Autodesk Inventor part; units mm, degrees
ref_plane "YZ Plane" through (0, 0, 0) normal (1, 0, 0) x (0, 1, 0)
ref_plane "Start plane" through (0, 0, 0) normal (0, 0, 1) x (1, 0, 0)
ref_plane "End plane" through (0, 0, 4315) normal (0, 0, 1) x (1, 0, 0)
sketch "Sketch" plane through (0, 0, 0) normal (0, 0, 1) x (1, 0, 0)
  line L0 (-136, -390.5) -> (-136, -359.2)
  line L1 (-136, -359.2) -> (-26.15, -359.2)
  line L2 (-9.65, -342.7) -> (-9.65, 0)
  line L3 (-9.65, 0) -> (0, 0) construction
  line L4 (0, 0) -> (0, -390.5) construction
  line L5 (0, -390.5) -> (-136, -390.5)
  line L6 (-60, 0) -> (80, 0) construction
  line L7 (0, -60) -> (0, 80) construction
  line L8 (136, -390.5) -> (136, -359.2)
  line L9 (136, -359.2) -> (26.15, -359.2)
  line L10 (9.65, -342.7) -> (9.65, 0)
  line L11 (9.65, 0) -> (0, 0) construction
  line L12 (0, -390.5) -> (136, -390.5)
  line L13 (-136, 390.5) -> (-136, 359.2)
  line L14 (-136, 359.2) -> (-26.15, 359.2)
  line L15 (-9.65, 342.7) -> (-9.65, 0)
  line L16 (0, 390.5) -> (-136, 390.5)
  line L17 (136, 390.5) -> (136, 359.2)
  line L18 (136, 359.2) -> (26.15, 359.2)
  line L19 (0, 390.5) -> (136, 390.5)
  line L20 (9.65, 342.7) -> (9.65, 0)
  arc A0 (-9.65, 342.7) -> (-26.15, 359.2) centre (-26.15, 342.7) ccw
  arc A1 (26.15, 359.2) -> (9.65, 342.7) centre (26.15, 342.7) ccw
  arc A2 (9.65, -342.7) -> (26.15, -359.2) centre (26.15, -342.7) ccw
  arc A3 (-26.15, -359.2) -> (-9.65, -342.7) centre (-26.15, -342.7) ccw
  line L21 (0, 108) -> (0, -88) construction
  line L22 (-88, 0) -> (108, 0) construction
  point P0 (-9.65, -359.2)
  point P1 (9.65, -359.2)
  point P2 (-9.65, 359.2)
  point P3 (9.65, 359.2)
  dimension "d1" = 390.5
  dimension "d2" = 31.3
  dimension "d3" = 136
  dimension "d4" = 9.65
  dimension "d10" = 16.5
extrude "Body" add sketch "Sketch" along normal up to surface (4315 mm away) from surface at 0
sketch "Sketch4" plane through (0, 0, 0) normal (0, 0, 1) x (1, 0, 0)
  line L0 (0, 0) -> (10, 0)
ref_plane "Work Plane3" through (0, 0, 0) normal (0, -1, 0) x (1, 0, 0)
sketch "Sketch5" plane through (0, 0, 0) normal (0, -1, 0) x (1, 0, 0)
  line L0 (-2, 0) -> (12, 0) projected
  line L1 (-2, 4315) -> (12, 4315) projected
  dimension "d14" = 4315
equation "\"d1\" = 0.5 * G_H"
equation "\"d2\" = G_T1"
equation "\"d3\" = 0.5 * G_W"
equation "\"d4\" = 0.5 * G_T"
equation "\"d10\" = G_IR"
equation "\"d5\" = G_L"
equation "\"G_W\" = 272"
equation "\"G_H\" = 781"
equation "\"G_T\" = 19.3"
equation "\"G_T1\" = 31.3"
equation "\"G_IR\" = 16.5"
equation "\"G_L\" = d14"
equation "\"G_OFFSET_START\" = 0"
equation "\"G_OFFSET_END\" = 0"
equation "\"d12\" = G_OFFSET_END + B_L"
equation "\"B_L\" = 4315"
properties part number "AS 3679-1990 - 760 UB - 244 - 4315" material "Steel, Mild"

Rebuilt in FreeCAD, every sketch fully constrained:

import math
import FreeCAD as App
import Part
import Sketcher

V = App.Vector
Q = App.Units.Quantity

doc = App.newDocument("Part")
params = doc.addObject("Spreadsheet::Sheet", "Params")
for row, (alias, value) in enumerate([
    ("sketch1_radius", "16.5 mm"),
    ("sketch1_height", "31.3 mm"),
    ("pad1_length", "4315 mm"),
], start=1):
    params.set(f"A{row}", alias)
    params.set(f"B{row}", "=" + value)
    params.setAlias(f"B{row}", alias)

body = doc.addObject("PartDesign::Body", "Body")

sketch1 = body.newObject("Sketcher::SketchObject", "Sketch")
sketch1.AttachmentSupport = (doc.getObject("XY_Plane"), [""])
sketch1.MapMode = "FlatFace"
sketch1.addGeometry(Part.LineSegment(V(-136, -359.2, 0), V(-136, -390.5, 0)), False)
sketch1.addGeometry(Part.LineSegment(V(-136, -390.5, 0), V(136, -390.5, 0)), False)
sketch1.addGeometry(Part.LineSegment(V(136, -390.5, 0), V(136, -359.2, 0)), False)
sketch1.addGeometry(Part.LineSegment(V(136, -359.2, 0), V(26.15, -359.2, 0)), False)
sketch1.addGeometry(Part.ArcOfCircle(Part.Circle(V(26.15, -342.7, 0), V(0, 0, 1), 16.5), math.radians(180), math.radians(270)), False)
sketch1.addGeometry(Part.LineSegment(V(9.65, -342.7, 0), V(9.65, 342.7, 0)), False)
sketch1.addGeometry(Part.ArcOfCircle(Part.Circle(V(26.15, 342.7, 0), V(0, 0, 1), 16.5), math.radians(90), math.radians(180)), False)
sketch1.addGeometry(Part.LineSegment(V(26.15, 359.2, 0), V(136, 359.2, 0)), False)
sketch1.addGeometry(Part.LineSegment(V(136, 359.2, 0), V(136, 390.5, 0)), False)
sketch1.addGeometry(Part.LineSegment(V(136, 390.5, 0), V(-136, 390.5, 0)), False)
sketch1.addGeometry(Part.LineSegment(V(-136, 390.5, 0), V(-136, 359.2, 0)), False)
sketch1.addGeometry(Part.LineSegment(V(-136, 359.2, 0), V(-26.15, 359.2, 0)), False)
sketch1.addGeometry(Part.ArcOfCircle(Part.Circle(V(-26.15, 342.7, 0), V(0, 0, 1), 16.5), math.radians(0), math.radians(90)), False)
sketch1.addGeometry(Part.LineSegment(V(-9.65, 342.7, 0), V(-9.65, -342.7, 0)), False)
sketch1.addGeometry(Part.ArcOfCircle(Part.Circle(V(-26.15, -342.7, 0), V(0, 0, 1), 16.5), math.radians(-90), math.radians(0)), False)
sketch1.addGeometry(Part.LineSegment(V(-26.15, -359.2, 0), V(-136, -359.2, 0)), False)
sketch1.addConstraint(Sketcher.Constraint("Coincident", 0, 2, 1, 1))
sketch1.addConstraint(Sketcher.Constraint("Coincident", 1, 2, 2, 1))
sketch1.addConstraint(Sketcher.Constraint("Coincident", 2, 2, 3, 1))
sketch1.addConstraint(Sketcher.Constraint("Tangent", 3, 2, 4, 2))
sketch1.addConstraint(Sketcher.Constraint("Tangent", 4, 1, 5, 1))
sketch1.addConstraint(Sketcher.Constraint("Tangent", 5, 2, 6, 2))
sketch1.addConstraint(Sketcher.Constraint("Tangent", 6, 1, 7, 1))
sketch1.addConstraint(Sketcher.Constraint("Coincident", 7, 2, 8, 1))
sketch1.addConstraint(Sketcher.Constraint("Coincident", 8, 2, 9, 1))
sketch1.addConstraint(Sketcher.Constraint("Coincident", 9, 2, 10, 1))
sketch1.addConstraint(Sketcher.Constraint("Coincident", 10, 2, 11, 1))
sketch1.addConstraint(Sketcher.Constraint("Tangent", 11, 2, 12, 2))
sketch1.addConstraint(Sketcher.Constraint("Tangent", 12, 1, 13, 1))
sketch1.addConstraint(Sketcher.Constraint("Tangent", 13, 2, 14, 2))
sketch1.addConstraint(Sketcher.Constraint("Tangent", 14, 1, 15, 1))
sketch1.addConstraint(Sketcher.Constraint("Coincident", 15, 2, 0, 1))
sketch1.addConstraint(Sketcher.Constraint("Vertical", 0))
sketch1.addConstraint(Sketcher.Constraint("Horizontal", 1))
sketch1.addConstraint(Sketcher.Constraint("Vertical", 2))
sketch1.addConstraint(Sketcher.Constraint("Horizontal", 3))
sketch1.addConstraint(Sketcher.Constraint("Vertical", 5))
sketch1.addConstraint(Sketcher.Constraint("Horizontal", 7))
sketch1.addConstraint(Sketcher.Constraint("Vertical", 8))
sketch1.addConstraint(Sketcher.Constraint("Horizontal", 9))
sketch1.addConstraint(Sketcher.Constraint("Vertical", 10))
sketch1.addConstraint(Sketcher.Constraint("Horizontal", 11))
sketch1.addConstraint(Sketcher.Constraint("Vertical", 13))
sketch1.addConstraint(Sketcher.Constraint("Horizontal", 15))
sketch1.addConstraint(Sketcher.Constraint("Equal", 4, 6))
sketch1.addConstraint(Sketcher.Constraint("Equal", 6, 12))
sketch1.addConstraint(Sketcher.Constraint("Equal", 12, 14))
sketch1.addConstraint(Sketcher.Constraint("Symmetric", 4, 3, 12, 3, -1, 1))
sketch1.addConstraint(Sketcher.Constraint("Symmetric", 0, 2, 8, 2, -1, 1))
sketch1.addConstraint(Sketcher.Constraint("Symmetric", 7, 2, 10, 2, -2))
sketch1.addConstraint(Sketcher.Constraint("Symmetric", 2, 2, 15, 2, -2))
sketch1.addConstraint(Sketcher.Constraint("Radius", 4, Q("16.5 mm")))
sketch1.addConstraint(Sketcher.Constraint("DistanceY", 0, 2, 0, 1, Q("31.3 mm")))
sketch1.addConstraint(Sketcher.Constraint("DistanceX", 0, 2, -1, 1, Q("136 mm")))
sketch1.addConstraint(Sketcher.Constraint("DistanceY", 0, 2, -1, 1, Q("390.5 mm")))
sketch1.addConstraint(Sketcher.Constraint("DistanceX", -1, 1, 4, 1, Q("9.65 mm")))
sketch1.setExpression("Constraints[35]", "Params.sketch1_radius")
sketch1.setExpression("Constraints[36]", "Params.sketch1_height")
pad1 = body.newObject("PartDesign::Pad", "Pad")
pad1.Profile = sketch1
pad1.setExpression("Length", "Params.pad1_length")

doc.recompute()
